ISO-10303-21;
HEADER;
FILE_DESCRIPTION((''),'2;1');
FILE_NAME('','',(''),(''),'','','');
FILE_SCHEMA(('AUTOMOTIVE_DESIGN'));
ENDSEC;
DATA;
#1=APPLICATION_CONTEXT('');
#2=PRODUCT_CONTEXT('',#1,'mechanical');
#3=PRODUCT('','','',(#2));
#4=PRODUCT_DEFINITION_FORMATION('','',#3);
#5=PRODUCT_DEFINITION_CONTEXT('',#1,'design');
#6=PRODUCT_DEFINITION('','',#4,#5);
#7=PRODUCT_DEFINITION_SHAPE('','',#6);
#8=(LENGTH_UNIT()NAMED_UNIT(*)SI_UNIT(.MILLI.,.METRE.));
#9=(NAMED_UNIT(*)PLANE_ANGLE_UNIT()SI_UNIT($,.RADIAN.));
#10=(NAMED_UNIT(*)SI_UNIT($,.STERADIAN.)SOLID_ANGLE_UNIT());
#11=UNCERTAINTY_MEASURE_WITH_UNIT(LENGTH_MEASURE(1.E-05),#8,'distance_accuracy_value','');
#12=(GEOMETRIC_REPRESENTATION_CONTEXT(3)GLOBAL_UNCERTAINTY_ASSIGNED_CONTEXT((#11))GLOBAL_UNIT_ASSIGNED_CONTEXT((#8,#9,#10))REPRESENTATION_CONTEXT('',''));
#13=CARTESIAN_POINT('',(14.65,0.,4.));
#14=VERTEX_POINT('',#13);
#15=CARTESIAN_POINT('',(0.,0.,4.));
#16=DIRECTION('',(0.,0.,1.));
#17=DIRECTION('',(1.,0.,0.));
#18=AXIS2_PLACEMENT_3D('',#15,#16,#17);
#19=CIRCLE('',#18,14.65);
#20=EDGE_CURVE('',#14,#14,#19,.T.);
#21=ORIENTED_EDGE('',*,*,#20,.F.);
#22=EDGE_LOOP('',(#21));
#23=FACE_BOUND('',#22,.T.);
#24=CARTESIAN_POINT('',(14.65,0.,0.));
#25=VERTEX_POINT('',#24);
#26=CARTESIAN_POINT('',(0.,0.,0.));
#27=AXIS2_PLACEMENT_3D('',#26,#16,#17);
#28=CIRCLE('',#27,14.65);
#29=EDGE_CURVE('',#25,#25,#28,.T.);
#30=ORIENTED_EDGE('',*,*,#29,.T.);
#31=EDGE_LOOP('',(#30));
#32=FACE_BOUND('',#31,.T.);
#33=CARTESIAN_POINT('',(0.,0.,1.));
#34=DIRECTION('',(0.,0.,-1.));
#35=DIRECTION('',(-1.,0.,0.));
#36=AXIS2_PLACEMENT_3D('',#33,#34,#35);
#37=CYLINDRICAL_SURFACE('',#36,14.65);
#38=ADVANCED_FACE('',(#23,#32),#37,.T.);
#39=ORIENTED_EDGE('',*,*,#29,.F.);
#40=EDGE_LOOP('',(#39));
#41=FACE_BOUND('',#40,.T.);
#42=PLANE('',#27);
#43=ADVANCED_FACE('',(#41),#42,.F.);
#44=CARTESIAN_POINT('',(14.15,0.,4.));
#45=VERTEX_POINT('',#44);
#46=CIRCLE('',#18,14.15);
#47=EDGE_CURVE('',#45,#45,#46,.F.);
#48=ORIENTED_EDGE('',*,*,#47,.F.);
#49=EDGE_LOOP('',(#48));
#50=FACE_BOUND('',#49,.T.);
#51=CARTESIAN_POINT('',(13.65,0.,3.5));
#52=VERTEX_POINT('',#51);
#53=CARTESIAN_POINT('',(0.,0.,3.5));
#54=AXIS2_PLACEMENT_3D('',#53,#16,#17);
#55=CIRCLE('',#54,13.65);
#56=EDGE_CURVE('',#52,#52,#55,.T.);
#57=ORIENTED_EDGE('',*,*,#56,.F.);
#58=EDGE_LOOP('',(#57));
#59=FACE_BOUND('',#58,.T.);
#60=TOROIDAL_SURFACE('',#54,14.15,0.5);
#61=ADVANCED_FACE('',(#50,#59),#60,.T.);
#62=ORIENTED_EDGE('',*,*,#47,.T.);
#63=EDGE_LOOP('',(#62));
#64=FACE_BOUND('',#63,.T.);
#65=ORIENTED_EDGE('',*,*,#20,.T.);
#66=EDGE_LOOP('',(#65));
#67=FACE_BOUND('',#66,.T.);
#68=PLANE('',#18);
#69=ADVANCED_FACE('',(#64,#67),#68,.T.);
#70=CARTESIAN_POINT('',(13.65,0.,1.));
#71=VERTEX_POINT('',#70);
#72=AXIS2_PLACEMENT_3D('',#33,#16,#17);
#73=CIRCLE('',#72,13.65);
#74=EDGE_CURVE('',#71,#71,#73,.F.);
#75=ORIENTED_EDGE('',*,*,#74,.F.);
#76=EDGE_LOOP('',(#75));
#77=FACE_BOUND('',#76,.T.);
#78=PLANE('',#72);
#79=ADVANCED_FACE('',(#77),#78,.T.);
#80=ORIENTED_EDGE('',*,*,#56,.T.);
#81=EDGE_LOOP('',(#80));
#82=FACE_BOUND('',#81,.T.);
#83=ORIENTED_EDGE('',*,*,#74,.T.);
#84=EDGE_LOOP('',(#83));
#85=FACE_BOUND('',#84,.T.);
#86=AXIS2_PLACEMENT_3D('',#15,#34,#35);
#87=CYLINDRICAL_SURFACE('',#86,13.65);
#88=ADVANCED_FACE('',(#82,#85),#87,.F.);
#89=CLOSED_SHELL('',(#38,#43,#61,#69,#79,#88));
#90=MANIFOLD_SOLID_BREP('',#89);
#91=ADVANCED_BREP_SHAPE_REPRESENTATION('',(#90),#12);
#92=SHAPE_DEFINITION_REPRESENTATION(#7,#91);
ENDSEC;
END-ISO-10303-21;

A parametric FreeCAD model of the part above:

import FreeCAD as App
import Part
import Sketcher
from FreeCAD import Vector
Q = App.Units.Quantity


def edges_at(feature, points):
    """Names of the edges that pass closest to the given points."""
    edges = feature.Shape.Edges
    near = lambda p: min(range(len(edges)), key=lambda i: edges[i].distToShape(Part.Vertex(*p))[0])
    return sorted({f"Edge{near(p) + 1}" for p in points})

doc = App.newDocument("Part")
body = doc.addObject("PartDesign::Body", "Body")

sketch1 = body.newObject("Sketcher::SketchObject", "Sketch")
sketch1.AttachmentSupport = (doc.getObject("XY_Plane"), [""])
sketch1.MapMode = "FlatFace"
sketch1.addGeometry(Part.Circle(Vector(0, 0, 0), Vector(0, 0, 1), 15), False)
sketch1.addConstraint([
    Sketcher.Constraint("Coincident", 0, 3, -1, 1),
    Sketcher.Constraint("Diameter", 0, Q("29.3 mm")),
])
pad1 = body.newObject("PartDesign::Pad", "Pad")
pad1.Profile = sketch1
pad1.Length = 1

sketch2 = body.newObject("Sketcher::SketchObject", "Sketch001")
sketch2.AttachmentSupport = (doc.getObject("XY_Plane"), [""])
sketch2.MapMode = "FlatFace"
sketch2.AttachmentOffset = App.Placement(Vector(0, 0, 1), App.Rotation())
sketch2.addGeometry([
    Part.Circle(Vector(0, 0, 0), Vector(0, 0, 1), 15),
    Part.Circle(Vector(0, 0, 0), Vector(0, 0, 1), 14),
], False)
sketch2.addConstraint([
    Sketcher.Constraint("Coincident", 0, 3, -1, 1),
    Sketcher.Constraint("Coincident", 1, 3, -1, 1),
    Sketcher.Constraint("Diameter", 0, Q("29.3 mm")),
    Sketcher.Constraint("Diameter", 1, Q("27.3 mm")),
])
pad2 = body.newObject("PartDesign::Pad", "Pad001")
pad2.Profile = sketch2
pad2.Length = 3
doc.recompute()

fillet = body.newObject("PartDesign::Fillet", "Fillet")
fillet.Base = (pad2, edges_at(pad2, [(-13.65, 0, 4)]))
fillet.Radius = 0.5

doc.recompute()
